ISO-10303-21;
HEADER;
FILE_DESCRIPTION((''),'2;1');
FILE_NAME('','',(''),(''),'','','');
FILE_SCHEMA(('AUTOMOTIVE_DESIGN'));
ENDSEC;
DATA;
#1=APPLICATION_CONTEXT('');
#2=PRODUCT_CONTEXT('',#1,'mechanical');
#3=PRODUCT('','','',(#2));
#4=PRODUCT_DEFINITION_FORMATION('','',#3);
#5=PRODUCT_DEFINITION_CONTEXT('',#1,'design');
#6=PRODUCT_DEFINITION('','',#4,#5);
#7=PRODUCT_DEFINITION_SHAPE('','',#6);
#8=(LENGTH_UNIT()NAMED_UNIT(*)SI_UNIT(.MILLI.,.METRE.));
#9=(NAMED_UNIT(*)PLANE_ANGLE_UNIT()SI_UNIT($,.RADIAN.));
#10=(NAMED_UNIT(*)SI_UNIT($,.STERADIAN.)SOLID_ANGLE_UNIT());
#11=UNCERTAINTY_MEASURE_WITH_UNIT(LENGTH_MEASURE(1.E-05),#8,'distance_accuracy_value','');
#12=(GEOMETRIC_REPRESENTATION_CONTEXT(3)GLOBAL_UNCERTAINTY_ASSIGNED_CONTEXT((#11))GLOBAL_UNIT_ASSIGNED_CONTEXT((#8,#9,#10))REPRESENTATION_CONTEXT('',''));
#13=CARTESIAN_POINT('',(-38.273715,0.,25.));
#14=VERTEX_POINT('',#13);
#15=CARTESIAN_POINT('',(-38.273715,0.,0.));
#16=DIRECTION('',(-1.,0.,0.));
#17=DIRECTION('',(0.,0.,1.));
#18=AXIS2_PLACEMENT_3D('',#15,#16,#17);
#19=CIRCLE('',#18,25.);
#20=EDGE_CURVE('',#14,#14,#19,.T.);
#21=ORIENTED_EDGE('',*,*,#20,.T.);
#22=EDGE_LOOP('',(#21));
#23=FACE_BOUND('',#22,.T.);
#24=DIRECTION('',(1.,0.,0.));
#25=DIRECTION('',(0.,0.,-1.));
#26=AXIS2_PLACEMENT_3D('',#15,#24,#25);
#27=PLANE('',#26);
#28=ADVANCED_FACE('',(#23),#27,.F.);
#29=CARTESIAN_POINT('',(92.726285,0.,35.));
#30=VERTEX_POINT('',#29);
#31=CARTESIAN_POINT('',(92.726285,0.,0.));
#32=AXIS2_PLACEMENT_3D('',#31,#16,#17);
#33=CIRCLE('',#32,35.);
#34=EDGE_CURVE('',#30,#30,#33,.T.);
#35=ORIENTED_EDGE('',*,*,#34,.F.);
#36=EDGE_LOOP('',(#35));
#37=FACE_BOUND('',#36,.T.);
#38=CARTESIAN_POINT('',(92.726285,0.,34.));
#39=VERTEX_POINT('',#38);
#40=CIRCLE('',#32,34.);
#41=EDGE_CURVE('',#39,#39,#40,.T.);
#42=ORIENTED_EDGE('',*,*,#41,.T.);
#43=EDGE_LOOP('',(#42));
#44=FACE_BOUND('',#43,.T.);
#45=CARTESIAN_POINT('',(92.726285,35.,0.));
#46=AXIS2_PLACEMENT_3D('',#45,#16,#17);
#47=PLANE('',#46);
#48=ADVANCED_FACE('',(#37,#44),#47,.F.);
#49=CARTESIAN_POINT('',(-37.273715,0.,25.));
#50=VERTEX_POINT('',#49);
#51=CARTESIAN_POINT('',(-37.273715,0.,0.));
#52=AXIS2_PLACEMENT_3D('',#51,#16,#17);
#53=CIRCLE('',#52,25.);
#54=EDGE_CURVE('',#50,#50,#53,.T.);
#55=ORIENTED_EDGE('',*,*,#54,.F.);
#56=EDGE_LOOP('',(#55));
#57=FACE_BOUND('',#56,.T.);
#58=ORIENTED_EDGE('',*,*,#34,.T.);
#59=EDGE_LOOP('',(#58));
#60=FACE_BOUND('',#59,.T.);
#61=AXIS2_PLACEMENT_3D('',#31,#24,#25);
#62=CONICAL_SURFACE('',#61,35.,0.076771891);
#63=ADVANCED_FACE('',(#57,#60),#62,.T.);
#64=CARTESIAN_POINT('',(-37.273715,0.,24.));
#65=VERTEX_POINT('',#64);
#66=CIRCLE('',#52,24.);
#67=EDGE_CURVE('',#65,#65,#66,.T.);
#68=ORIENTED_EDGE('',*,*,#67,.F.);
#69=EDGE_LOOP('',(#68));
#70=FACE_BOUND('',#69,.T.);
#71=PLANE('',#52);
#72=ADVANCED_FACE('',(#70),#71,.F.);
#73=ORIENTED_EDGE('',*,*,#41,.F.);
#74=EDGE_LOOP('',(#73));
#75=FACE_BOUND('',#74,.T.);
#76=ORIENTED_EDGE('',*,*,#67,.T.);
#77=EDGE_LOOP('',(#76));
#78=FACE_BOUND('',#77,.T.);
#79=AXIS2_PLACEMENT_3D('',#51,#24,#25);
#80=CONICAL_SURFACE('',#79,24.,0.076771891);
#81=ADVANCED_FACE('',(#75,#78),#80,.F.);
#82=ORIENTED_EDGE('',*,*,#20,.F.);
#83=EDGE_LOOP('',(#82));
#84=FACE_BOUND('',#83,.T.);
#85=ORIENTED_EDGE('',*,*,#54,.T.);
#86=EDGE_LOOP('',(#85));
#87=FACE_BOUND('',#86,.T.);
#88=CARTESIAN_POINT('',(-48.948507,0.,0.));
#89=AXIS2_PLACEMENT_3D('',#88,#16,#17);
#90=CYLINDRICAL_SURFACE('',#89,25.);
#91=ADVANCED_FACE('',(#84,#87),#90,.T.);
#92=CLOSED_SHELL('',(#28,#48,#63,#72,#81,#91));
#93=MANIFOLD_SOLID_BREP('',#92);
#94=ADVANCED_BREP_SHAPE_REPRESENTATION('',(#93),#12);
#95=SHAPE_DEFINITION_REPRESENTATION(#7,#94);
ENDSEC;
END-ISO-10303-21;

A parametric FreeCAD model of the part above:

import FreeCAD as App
import Part
import Sketcher


def add_polygon(sketch, points):
    """Adds a closed chain of lines whose ends are joined by coincident constraints."""
    first, n = sketch.GeometryCount, len(points)
    for a, b in zip(points, points[1:] + points[:1]):
        sketch.addGeometry(Part.LineSegment(App.Vector(*a, 0), App.Vector(*b, 0)), False)
    for i in range(n):
        sketch.addConstraint(Sketcher.Constraint("Coincident", first + i, 2, first + (i + 1) % n, 1))

doc = App.newDocument("Part")
body = doc.addObject("PartDesign::Body", "Body")

# Sketch on XY plane
sketch1 = body.newObject("Sketcher::SketchObject", "Sketch")
sketch1.AttachmentSupport = (doc.getObject("XY_Plane"), [""])
sketch1.MapMode = "FlatFace"
add_polygon(sketch1, [(92.726285, 35), (-37.273715, 25), (-38.273715, 25), (-38.273715, 0), (-37.273715, 0), (-37.273715, 24), (92.726285, 34)])  # lines 0-6
sketch1.addConstraint(Sketcher.Constraint("Horizontal", 1))
sketch1.addConstraint(Sketcher.Constraint("Vertical", 2))
sketch1.addConstraint(Sketcher.Constraint("Horizontal", 3))
sketch1.addConstraint(Sketcher.Constraint("Vertical", 4))
sketch1.addConstraint(Sketcher.Constraint("Vertical", 6))
sketch1.addConstraint(Sketcher.Constraint("PointOnObject", 2, 2, -1))
sketch1.addConstraint(Sketcher.Constraint("Parallel", 0, 5))
sketch1.addConstraint(Sketcher.Constraint("Vertical", 0, 2, 3, 2))
sketch1.addConstraint(Sketcher.Constraint("Equal", 3, 6))
sketch1.addConstraint(Sketcher.Constraint("DistanceX", 1, 2, 1, 1, 1.0))
sketch1.addConstraint(Sketcher.Constraint("DistanceY", 2, 2, 2, 1, 25.0))
sketch1.addConstraint(Sketcher.Constraint("DistanceY", -1, 1, 5, 2, 34.0))
sketch1.addConstraint(Sketcher.Constraint("DistanceX", 0, 2, 5, 2, 130.0))
sketch1.addConstraint(Sketcher.Constraint("DistanceX", 0, 2, -1, 1, 37.273715))
revolution = body.newObject("PartDesign::Revolution", "Revolution")
revolution.Profile = sketch1
revolution.ReferenceAxis = (sketch1, ["H_Axis"])
revolution.Angle = 360

doc.recompute()
